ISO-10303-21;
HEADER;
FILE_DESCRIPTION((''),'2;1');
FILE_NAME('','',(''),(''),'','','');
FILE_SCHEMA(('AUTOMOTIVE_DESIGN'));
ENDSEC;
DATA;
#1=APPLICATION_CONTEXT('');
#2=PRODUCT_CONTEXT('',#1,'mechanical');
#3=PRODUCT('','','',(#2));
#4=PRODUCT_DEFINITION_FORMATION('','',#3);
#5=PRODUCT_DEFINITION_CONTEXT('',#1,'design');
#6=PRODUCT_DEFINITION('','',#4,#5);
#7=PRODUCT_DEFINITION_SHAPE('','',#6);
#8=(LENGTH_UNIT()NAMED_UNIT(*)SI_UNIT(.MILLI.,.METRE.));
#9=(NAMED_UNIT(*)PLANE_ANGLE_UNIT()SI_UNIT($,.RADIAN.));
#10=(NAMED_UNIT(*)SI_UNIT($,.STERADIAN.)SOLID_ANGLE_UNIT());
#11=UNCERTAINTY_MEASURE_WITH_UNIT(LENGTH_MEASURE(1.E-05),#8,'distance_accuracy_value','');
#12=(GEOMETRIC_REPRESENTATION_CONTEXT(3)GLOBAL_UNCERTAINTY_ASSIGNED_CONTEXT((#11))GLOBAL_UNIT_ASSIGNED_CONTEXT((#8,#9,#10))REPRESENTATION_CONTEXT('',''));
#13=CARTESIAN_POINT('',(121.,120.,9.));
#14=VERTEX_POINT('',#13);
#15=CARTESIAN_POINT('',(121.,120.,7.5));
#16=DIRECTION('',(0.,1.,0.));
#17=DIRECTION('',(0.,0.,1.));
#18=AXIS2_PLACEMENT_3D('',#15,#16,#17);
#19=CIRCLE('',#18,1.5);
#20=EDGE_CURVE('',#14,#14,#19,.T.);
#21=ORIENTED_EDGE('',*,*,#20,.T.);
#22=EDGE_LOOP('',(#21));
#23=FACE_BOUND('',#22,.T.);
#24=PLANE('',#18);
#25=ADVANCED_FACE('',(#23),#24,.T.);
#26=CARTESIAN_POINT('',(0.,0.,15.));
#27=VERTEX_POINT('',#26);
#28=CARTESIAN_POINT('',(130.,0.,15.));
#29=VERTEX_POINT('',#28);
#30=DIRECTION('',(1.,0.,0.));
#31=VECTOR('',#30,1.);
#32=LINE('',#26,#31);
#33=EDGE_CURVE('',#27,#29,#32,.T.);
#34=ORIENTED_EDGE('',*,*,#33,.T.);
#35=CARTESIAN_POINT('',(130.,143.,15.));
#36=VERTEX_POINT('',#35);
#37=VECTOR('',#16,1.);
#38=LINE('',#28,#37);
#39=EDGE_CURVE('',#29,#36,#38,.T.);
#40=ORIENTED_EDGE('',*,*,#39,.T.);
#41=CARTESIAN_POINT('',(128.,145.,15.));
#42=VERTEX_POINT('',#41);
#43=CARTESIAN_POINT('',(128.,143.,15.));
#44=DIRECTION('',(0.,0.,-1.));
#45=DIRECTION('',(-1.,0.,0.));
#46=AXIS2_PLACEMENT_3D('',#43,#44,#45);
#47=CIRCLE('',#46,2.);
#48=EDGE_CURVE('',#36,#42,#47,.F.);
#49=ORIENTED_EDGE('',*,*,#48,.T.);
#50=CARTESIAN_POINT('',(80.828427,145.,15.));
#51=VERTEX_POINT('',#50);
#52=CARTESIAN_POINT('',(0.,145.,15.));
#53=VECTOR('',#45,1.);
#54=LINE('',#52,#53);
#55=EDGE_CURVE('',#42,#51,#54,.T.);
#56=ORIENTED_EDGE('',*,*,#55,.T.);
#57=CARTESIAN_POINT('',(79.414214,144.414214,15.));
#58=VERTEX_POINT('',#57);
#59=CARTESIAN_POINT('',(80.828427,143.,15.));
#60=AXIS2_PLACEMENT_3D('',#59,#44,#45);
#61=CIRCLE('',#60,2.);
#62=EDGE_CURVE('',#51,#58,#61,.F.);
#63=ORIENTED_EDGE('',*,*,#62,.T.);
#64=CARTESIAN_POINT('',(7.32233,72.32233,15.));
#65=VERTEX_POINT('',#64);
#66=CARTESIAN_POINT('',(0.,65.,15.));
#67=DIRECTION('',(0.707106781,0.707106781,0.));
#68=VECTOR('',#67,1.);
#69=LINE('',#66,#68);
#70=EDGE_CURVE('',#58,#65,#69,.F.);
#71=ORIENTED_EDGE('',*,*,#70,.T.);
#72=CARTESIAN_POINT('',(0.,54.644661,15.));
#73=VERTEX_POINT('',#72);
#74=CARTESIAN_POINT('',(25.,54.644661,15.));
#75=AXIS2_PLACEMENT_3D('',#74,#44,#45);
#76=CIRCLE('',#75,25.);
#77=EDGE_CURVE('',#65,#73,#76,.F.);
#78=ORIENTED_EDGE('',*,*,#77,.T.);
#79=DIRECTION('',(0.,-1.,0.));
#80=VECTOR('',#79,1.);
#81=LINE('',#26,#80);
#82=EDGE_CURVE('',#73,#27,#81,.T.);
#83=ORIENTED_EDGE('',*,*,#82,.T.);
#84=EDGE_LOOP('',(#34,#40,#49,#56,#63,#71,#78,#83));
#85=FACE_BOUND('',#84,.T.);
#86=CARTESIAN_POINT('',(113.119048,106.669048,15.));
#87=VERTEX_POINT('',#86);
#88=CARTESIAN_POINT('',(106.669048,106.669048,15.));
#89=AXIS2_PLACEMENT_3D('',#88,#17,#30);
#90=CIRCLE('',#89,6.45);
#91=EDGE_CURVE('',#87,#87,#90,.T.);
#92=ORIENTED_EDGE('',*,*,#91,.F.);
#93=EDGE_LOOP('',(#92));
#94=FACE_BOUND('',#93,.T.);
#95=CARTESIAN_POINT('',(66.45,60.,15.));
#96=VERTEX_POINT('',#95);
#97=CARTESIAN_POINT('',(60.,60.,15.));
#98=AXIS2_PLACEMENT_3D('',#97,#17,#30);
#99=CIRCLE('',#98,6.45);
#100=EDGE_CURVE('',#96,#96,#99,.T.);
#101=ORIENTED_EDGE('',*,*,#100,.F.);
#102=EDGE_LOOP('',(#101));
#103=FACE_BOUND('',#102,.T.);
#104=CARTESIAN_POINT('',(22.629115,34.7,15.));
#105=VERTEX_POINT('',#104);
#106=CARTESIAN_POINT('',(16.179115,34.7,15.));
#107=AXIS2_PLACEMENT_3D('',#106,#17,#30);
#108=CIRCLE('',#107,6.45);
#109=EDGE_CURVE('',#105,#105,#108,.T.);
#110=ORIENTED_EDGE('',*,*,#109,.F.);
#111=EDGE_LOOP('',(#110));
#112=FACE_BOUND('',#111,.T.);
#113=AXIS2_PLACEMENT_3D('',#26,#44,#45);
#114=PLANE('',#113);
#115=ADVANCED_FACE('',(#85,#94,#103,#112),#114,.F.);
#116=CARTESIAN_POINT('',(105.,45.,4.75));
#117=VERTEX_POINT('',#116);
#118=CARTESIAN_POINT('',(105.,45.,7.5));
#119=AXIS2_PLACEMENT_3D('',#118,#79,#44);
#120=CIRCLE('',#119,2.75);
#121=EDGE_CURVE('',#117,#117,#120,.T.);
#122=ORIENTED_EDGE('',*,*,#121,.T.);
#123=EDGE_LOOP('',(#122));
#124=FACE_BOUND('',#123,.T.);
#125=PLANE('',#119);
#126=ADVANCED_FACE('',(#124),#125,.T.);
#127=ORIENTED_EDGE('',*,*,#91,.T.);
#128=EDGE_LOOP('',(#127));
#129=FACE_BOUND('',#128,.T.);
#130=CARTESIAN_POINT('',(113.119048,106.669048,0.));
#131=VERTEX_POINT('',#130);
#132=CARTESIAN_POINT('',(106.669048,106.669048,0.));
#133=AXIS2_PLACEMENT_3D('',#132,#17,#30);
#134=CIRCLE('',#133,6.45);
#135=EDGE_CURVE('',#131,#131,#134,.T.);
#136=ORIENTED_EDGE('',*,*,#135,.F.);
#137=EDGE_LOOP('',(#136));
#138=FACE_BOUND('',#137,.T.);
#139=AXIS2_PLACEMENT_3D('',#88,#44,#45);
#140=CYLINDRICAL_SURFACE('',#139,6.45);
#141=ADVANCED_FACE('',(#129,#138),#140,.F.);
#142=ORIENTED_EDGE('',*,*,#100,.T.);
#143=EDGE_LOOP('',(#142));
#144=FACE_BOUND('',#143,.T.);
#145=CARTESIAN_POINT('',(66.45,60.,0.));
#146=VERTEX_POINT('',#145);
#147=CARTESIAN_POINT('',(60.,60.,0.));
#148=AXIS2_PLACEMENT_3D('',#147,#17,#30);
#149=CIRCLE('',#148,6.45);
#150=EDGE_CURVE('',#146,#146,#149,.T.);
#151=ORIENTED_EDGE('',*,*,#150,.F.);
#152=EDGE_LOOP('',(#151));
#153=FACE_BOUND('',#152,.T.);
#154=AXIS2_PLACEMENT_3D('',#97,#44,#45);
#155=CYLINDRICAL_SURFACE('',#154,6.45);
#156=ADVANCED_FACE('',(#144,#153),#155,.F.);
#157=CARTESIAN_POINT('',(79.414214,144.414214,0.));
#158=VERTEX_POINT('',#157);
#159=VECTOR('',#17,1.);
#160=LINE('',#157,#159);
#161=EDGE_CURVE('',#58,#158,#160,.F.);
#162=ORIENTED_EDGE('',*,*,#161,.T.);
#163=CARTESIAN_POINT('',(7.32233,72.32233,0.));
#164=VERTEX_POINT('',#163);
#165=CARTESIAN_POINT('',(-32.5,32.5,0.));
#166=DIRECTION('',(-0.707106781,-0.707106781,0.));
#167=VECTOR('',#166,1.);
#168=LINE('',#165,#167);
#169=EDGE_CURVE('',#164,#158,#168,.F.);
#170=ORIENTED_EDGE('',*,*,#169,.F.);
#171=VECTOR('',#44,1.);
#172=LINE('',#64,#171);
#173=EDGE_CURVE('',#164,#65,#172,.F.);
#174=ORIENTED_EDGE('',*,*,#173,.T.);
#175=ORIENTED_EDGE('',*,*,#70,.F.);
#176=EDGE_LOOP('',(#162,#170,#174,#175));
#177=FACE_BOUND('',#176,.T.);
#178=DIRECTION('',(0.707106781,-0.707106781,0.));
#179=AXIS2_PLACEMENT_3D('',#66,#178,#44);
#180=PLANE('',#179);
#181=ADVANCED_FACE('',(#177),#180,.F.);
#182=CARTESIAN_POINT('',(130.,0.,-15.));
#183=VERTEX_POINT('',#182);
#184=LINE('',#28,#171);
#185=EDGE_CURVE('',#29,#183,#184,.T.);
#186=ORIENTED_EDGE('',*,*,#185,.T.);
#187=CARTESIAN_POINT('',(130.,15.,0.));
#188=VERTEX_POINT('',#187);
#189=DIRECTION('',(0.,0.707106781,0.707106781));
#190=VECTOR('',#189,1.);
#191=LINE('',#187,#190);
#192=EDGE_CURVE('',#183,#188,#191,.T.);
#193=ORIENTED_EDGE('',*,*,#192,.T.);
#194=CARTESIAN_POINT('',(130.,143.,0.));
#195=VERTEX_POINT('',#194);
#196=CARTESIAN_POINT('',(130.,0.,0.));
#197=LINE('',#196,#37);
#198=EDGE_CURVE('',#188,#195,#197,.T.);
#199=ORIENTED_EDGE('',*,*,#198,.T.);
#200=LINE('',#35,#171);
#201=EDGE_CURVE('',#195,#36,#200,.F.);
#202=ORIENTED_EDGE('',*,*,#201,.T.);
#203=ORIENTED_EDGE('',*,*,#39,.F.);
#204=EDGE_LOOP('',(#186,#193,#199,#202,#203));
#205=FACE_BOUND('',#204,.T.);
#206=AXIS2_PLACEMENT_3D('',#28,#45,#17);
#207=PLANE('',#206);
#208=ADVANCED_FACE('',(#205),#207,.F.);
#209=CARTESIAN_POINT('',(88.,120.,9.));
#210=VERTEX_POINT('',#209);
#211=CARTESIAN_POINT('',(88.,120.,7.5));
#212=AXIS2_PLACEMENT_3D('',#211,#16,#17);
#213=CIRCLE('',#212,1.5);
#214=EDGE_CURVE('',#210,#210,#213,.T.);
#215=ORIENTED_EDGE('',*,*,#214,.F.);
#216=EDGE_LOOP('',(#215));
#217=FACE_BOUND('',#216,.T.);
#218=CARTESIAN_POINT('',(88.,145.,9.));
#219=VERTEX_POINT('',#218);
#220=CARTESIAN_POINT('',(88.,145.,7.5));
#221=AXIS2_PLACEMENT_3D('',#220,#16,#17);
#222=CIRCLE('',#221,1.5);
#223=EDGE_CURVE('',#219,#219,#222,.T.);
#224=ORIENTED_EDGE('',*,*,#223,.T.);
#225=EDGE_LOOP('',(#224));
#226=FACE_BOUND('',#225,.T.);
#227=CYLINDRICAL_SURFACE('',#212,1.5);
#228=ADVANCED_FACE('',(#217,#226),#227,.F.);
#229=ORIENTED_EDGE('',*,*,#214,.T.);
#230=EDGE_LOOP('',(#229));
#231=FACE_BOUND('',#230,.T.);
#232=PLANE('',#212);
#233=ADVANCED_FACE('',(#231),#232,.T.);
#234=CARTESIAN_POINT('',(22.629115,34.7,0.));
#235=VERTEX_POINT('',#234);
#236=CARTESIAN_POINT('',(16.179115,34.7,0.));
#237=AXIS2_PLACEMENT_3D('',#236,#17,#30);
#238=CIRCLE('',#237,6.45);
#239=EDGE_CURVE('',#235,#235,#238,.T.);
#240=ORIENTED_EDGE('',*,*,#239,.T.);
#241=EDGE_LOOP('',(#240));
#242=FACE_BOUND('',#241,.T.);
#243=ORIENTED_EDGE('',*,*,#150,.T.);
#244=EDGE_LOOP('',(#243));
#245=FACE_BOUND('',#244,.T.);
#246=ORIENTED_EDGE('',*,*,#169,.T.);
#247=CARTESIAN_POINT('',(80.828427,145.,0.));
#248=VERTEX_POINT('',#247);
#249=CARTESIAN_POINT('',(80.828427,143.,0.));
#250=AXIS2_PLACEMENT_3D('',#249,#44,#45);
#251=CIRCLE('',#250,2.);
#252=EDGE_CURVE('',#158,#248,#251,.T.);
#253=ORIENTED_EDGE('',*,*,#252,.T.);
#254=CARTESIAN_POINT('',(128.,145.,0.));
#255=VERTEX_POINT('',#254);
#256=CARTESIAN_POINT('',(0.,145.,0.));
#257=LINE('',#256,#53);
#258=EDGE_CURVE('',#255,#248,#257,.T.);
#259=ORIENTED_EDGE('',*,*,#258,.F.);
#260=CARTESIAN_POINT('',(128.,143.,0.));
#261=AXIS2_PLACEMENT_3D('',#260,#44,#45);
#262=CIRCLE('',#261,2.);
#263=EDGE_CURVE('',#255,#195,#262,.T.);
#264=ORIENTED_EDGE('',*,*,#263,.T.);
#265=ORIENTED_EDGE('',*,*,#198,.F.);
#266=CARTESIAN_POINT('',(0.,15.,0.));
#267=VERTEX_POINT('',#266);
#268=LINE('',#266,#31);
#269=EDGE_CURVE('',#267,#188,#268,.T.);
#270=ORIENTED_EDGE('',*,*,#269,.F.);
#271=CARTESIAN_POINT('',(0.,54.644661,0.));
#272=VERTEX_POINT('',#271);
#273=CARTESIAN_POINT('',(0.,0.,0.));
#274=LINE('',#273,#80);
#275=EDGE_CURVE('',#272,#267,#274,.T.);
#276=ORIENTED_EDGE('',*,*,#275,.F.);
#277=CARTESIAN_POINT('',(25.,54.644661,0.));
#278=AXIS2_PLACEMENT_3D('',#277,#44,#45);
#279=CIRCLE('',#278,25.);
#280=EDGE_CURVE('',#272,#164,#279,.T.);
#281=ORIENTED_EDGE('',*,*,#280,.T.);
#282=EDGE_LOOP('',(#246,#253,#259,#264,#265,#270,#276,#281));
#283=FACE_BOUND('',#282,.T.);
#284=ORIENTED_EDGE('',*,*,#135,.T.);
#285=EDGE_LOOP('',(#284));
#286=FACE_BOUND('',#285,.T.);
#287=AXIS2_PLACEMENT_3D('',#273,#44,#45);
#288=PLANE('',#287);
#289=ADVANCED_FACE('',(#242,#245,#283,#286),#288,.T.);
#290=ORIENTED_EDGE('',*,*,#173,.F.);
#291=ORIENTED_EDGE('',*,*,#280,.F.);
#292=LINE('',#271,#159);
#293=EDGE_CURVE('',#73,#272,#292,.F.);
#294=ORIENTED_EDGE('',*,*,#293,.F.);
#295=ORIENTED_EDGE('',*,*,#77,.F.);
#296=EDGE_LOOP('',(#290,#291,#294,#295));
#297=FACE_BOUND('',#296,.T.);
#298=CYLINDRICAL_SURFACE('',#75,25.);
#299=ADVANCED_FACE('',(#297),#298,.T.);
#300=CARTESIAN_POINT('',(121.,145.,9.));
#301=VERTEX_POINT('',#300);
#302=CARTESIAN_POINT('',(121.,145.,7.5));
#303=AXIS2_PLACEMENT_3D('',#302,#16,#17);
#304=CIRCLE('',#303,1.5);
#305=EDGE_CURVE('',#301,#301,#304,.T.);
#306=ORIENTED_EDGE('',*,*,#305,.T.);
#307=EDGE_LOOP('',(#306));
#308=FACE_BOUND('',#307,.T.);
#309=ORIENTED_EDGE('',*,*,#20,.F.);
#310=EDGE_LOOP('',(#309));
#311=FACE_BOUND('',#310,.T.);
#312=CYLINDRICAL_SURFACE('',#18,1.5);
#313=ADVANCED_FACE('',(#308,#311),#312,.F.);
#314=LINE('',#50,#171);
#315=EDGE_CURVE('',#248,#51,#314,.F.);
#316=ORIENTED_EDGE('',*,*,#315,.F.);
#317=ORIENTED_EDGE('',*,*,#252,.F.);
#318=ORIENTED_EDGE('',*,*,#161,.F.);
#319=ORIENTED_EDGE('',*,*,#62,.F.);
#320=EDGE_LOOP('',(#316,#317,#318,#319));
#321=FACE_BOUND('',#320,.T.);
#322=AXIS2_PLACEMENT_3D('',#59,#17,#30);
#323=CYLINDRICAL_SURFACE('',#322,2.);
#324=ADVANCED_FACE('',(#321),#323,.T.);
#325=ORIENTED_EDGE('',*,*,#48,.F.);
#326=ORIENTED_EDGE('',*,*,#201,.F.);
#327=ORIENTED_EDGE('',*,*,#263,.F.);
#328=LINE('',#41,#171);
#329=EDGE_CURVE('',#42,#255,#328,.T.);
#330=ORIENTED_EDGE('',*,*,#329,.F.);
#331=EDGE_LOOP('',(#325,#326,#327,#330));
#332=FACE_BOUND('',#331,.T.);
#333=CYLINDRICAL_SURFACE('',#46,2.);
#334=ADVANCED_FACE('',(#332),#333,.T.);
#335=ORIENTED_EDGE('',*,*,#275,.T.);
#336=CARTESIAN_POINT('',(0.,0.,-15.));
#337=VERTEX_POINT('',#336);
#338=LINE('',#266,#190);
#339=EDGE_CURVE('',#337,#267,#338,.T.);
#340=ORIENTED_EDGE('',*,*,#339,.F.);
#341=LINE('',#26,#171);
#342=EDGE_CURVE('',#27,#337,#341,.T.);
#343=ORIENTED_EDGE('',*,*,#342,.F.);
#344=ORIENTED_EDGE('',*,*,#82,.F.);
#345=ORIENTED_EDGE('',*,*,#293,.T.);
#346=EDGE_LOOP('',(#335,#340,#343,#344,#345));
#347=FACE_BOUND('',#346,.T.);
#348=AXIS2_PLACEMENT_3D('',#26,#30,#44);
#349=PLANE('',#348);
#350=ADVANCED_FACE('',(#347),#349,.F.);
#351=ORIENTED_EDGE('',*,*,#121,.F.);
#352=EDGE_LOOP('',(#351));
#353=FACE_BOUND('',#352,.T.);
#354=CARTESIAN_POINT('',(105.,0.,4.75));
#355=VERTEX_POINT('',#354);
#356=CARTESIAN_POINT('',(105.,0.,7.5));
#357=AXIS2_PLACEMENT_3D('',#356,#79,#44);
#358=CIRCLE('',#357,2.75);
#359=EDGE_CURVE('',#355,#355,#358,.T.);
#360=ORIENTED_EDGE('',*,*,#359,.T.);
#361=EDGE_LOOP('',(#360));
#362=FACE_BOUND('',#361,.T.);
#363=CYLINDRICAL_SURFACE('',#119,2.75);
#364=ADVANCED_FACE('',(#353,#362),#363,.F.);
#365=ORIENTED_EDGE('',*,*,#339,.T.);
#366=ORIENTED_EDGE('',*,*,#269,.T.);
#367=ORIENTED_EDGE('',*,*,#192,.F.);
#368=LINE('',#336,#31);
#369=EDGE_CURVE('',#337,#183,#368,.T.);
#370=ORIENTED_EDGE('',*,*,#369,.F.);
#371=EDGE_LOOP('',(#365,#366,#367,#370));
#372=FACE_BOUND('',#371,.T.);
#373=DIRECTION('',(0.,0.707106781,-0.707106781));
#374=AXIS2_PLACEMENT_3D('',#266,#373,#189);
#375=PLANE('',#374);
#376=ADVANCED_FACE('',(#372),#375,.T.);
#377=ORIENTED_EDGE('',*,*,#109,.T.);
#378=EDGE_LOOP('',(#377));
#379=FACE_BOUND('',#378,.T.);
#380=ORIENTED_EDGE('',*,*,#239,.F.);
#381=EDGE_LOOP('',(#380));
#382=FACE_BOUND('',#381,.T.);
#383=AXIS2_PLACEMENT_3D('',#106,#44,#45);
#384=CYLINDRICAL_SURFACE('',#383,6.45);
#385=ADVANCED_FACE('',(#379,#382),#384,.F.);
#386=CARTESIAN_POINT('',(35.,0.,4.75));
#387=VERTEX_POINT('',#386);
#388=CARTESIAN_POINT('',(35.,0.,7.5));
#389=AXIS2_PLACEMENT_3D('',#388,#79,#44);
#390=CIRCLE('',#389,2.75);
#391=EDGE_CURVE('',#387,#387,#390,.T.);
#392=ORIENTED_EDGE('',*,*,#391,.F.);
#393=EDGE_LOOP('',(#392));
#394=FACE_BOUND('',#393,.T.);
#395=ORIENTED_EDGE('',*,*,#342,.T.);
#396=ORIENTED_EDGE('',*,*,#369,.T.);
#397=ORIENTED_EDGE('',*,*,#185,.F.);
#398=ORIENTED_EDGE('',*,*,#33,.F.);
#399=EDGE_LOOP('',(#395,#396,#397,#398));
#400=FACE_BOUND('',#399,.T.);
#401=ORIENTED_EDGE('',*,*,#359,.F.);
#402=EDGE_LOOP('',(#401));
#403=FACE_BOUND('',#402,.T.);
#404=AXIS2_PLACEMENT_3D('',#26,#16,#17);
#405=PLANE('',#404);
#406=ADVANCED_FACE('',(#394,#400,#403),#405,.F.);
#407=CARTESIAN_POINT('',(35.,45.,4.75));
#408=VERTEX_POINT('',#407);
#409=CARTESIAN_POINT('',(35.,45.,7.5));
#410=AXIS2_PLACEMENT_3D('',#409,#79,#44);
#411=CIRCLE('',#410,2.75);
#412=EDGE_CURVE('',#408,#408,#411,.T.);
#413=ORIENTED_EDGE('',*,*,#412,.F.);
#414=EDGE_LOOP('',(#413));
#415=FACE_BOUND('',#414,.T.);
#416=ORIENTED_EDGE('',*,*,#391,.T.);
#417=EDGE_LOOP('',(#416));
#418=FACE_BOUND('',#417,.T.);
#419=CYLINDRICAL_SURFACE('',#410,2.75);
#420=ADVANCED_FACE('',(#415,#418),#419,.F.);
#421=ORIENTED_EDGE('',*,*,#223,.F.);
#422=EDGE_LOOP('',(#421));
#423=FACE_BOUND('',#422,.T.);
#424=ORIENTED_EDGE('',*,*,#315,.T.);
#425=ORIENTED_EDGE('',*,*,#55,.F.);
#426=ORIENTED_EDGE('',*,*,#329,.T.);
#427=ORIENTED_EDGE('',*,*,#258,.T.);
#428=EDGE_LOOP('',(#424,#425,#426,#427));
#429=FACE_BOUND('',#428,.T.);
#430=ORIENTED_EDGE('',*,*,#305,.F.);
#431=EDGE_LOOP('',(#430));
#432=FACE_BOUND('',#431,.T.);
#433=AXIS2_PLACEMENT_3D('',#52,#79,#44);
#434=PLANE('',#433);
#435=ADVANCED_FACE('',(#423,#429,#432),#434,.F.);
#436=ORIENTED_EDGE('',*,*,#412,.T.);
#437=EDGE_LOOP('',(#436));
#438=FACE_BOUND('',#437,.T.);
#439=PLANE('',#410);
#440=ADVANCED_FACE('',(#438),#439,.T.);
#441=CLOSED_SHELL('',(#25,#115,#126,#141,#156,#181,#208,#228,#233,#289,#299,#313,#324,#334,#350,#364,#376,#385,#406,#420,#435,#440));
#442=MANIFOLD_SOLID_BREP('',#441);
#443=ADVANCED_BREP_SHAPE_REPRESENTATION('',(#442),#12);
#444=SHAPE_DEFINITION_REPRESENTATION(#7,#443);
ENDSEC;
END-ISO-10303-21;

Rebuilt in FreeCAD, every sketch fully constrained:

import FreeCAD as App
import Part
import Sketcher

V = App.Vector


def edges_at(feature, points):
    """Names of the edges that pass closest to the given points."""
    edges = feature.Shape.Edges
    near = lambda p: min(range(len(edges)), key=lambda i: edges[i].distToShape(Part.Vertex(*p))[0])
    return sorted({f"Edge{near(p) + 1}" for p in points})

doc = App.newDocument("Part")
body = doc.addObject("PartDesign::Body", "Body")

# Sketch on XY plane
sketch1 = doc.addObject("Sketcher::SketchObject", "Sketch")
body.addObject(sketch1)
sketch1.AttachmentSupport = (doc.XY_Plane, [""])
sketch1.MapMode = "FlatFace"
sketch1.addGeometry(Part.LineSegment(V(0, 145, 0), V(0, 0, 0)), False)
sketch1.addGeometry(Part.LineSegment(V(0, 0, 0), V(130, 0, 0)), False)
sketch1.addGeometry(Part.LineSegment(V(130, 0, 0), V(130, 145, 0)), False)
sketch1.addGeometry(Part.LineSegment(V(130, 145, 0), V(0, 145, 0)), False)
sketch1.addGeometry(Part.Circle(V(16, 35, 0), V(0, 0, 1), 6), False)
sketch1.addGeometry(Part.Circle(V(60, 60, 0), V(0, 0, 1), 6), False)
sketch1.addGeometry(Part.Circle(V(107, 107, 0), V(0, 0, 1), 6), False)
sketch1.addConstraint(Sketcher.Constraint("Coincident", 0, 2, 1, 1))
sketch1.addConstraint(Sketcher.Constraint("Coincident", 1, 2, 2, 1))
sketch1.addConstraint(Sketcher.Constraint("Coincident", 2, 2, 3, 1))
sketch1.addConstraint(Sketcher.Constraint("Coincident", 3, 2, 0, 1))
sketch1.addConstraint(Sketcher.Constraint("Vertical", 0))
sketch1.addConstraint(Sketcher.Constraint("Horizontal", 1))
sketch1.addConstraint(Sketcher.Constraint("Vertical", 2))
sketch1.addConstraint(Sketcher.Constraint("Horizontal", 3))
sketch1.addConstraint(Sketcher.Constraint("Coincident", 0, 2, -1, 1))
sketch1.addConstraint(Sketcher.Constraint("Equal", 4, 5))
sketch1.addConstraint(Sketcher.Constraint("Equal", 5, 6))
sketch1.addConstraint(Sketcher.Constraint("Diameter", 4, 12.9))
sketch1.addConstraint(Sketcher.Constraint("DistanceX", 1, 1, 1, 2, 130.0))
sketch1.addConstraint(Sketcher.Constraint("DistanceY", 0, 2, 0, 1, 145.0))
sketch1.addConstraint(Sketcher.Constraint("DistanceX", -1, 1, 5, 3, 60.0))
sketch1.addConstraint(Sketcher.Constraint("DistanceY", -1, 1, 5, 3, 60.0))
sketch1.addConstraint(Sketcher.Constraint("DistanceY", -1, 1, 4, 3, 34.7))
sketch1.addConstraint(Sketcher.Constraint("DistanceX", -1, 1, 4, 3, 16.179115))
sketch1.addConstraint(Sketcher.Constraint("DistanceX", -1, 1, 6, 3, 106.669048))
sketch1.addConstraint(Sketcher.Constraint("DistanceY", -1, 1, 6, 3, 106.669048))
pad1 = doc.addObject("PartDesign::Pad", "Pad")
body.addObject(pad1)
pad1.Profile = sketch1
pad1.Length = 15
doc.recompute()

chamfer = doc.addObject("PartDesign::Chamfer", "Chamfer")
body.addObject(chamfer)
chamfer.Base = (pad1, edges_at(pad1, [(0, 145, 7.5)]))
chamfer.Size = 80
doc.recompute()

fillet = doc.addObject("PartDesign::Fillet", "Fillet")
body.addObject(fillet)
fillet.Base = (chamfer, edges_at(chamfer, [(0, 65, 7.5)]))
fillet.Radius = 25
doc.recompute()

fillet2 = doc.addObject("PartDesign::Fillet", "Fillet001")
body.addObject(fillet2)
fillet2.Base = (fillet, edges_at(fillet, [(80, 145, 7.5), (130, 145, 7.5)]))
fillet2.Radius = 2

# Sketch on YZ plane
sketch2 = doc.addObject("Sketcher::SketchObject", "Sketch001")
body.addObject(sketch2)
sketch2.AttachmentSupport = (doc.YZ_Plane, [""])
sketch2.MapMode = "FlatFace"
sketch2.AttachmentOffset = App.Placement(V(0, 0, 130), App.Rotation())
sketch2.addGeometry(Part.LineSegment(V(0, -15, 0), V(15, 0, 0)), False)
sketch2.addGeometry(Part.LineSegment(V(15, 0, 0), V(0, 0, 0)), False)
sketch2.addGeometry(Part.LineSegment(V(0, 0, 0), V(0, -15, 0)), False)
sketch2.addConstraint(Sketcher.Constraint("Coincident", 0, 2, 1, 1))
sketch2.addConstraint(Sketcher.Constraint("Coincident", 1, 2, 2, 1))
sketch2.addConstraint(Sketcher.Constraint("Coincident", 2, 2, 0, 1))
sketch2.addConstraint(Sketcher.Constraint("Horizontal", 1))
sketch2.addConstraint(Sketcher.Constraint("Vertical", 2))
sketch2.addConstraint(Sketcher.Constraint("Coincident", 1, 2, -1, 1))
sketch2.addConstraint(Sketcher.Constraint("Equal", 1, 2))
sketch2.addConstraint(Sketcher.Constraint("DistanceX", 1, 2, 1, 1, 15.0))
pad2 = doc.addObject("PartDesign::Pad", "Pad001")
body.addObject(pad2)
pad2.Profile = sketch2
pad2.Length = 130
pad2.Reversed = True

# Sketch on XZ plane
sketch3 = doc.addObject("Sketcher::SketchObject", "Sketch002")
body.addObject(sketch3)
sketch3.AttachmentSupport = (doc.XZ_Plane, [""])
sketch3.MapMode = "FlatFace"
sketch3.addGeometry(Part.Circle(V(35, 7.5, 0), V(0, 0, 1), 2.8), False)
sketch3.addGeometry(Part.Circle(V(105, 7.5, 0), V(0, 0, 1), 2.8), False)
sketch3.addConstraint(Sketcher.Constraint("Equal", 0, 1))
sketch3.addConstraint(Sketcher.Constraint("Horizontal", 0, 3, 1, 3))
sketch3.addConstraint(Sketcher.Constraint("Diameter", 0, 5.5))
sketch3.addConstraint(Sketcher.Constraint("DistanceX", -1, 1, 0, 3, 35.0))
sketch3.addConstraint(Sketcher.Constraint("DistanceX", -1, 1, 1, 3, 105.0))
sketch3.addConstraint(Sketcher.Constraint("DistanceY", -1, 1, 0, 3, 7.5))
pocket1 = doc.addObject("PartDesign::Pocket", "Pocket")
body.addObject(pocket1)
pocket1.Profile = sketch3
pocket1.Length = 45

# Sketch on XZ plane
sketch4 = doc.addObject("Sketcher::SketchObject", "Sketch003")
body.addObject(sketch4)
sketch4.AttachmentSupport = (doc.XZ_Plane, [""])
sketch4.MapMode = "FlatFace"
sketch4.AttachmentOffset = App.Placement(V(0, 0, -145), App.Rotation())
sketch4.addGeometry(Part.Circle(V(121, 7.5, 0), V(0, 0, 1), 1.5), False)
sketch4.addGeometry(Part.Circle(V(88, 7.5, 0), V(0, 0, 1), 1.5), False)
sketch4.addConstraint(Sketcher.Constraint("Equal", 0, 1))
sketch4.addConstraint(Sketcher.Constraint("Horizontal", 0, 3, 1, 3))
sketch4.addConstraint(Sketcher.Constraint("Diameter", 0, 3.0))
sketch4.addConstraint(Sketcher.Constraint("DistanceX", -1, 1, 0, 3, 121.0))
sketch4.addConstraint(Sketcher.Constraint("DistanceX", -1, 1, 1, 3, 88.0))
sketch4.addConstraint(Sketcher.Constraint("DistanceY", -1, 1, 0, 3, 7.5))
pocket2 = doc.addObject("PartDesign::Pocket", "Pocket001")
body.addObject(pocket2)
pocket2.Profile = sketch4
pocket2.Length = 25
pocket2.Reversed = True

doc.recompute()
